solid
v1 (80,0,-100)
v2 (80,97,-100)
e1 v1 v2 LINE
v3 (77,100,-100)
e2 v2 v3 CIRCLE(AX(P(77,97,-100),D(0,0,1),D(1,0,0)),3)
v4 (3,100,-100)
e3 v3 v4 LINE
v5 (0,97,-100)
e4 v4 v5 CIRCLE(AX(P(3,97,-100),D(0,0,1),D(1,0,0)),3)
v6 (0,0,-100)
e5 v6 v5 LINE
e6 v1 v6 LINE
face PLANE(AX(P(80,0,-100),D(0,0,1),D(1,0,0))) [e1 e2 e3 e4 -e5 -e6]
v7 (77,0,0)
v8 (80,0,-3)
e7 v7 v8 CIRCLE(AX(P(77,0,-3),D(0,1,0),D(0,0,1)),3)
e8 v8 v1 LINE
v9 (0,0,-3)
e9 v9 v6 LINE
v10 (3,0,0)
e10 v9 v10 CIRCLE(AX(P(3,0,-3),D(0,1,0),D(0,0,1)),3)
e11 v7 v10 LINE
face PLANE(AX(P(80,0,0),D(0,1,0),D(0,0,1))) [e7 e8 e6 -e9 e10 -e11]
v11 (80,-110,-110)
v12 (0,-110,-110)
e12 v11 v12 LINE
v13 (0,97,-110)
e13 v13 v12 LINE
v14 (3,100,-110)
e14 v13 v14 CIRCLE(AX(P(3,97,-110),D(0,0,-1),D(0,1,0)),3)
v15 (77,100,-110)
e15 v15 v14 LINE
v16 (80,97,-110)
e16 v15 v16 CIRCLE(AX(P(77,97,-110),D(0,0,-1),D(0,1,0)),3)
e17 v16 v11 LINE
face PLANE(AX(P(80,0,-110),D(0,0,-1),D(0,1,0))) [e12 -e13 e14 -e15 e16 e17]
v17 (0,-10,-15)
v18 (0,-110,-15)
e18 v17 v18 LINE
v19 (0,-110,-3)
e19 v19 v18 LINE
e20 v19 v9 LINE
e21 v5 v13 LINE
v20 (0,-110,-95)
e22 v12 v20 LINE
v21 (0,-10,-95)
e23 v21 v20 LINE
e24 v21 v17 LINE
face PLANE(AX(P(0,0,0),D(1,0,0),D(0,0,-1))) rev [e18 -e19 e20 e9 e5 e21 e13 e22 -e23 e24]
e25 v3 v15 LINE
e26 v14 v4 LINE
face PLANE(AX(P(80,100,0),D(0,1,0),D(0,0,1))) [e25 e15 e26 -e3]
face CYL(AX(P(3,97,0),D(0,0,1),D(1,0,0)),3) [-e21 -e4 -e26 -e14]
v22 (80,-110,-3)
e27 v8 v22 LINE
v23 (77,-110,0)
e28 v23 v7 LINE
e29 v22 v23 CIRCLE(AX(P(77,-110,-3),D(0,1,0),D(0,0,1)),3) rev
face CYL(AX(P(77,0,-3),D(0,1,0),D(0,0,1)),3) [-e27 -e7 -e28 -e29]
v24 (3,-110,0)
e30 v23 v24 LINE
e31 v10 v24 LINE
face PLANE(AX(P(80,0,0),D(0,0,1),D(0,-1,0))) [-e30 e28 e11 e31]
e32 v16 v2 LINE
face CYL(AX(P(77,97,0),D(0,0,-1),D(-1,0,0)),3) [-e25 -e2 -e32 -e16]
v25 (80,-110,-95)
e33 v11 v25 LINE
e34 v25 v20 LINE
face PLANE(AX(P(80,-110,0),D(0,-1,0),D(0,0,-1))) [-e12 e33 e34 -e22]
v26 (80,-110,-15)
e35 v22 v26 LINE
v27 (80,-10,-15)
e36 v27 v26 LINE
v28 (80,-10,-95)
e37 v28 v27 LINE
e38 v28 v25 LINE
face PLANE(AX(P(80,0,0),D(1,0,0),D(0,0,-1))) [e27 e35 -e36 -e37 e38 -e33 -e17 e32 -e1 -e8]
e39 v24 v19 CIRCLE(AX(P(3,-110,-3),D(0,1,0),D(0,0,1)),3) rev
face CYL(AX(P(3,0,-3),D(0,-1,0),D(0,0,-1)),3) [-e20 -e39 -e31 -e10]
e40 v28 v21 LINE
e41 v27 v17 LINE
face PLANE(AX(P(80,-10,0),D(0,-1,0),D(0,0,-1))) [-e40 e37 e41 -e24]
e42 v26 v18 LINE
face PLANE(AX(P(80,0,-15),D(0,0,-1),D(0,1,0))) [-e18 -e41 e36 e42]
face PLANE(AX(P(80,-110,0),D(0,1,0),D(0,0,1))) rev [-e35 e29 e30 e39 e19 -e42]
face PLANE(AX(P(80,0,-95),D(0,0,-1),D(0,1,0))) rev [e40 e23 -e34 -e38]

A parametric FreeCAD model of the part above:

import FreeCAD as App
import Part
import Sketcher
from FreeCAD import Vector


def edges_at(feature, points):
    """Names of the edges that pass closest to the given points."""
    edges = feature.Shape.Edges
    near = lambda p: min(range(len(edges)), key=lambda i: edges[i].distToShape(Part.Vertex(*p))[0])
    return sorted({f"Edge{near(p) + 1}" for p in points})


def add_polygon(sketch, points):
    """Adds a closed chain of lines whose ends are joined by coincident constraints."""
    first, n = sketch.GeometryCount, len(points)
    for a, b in zip(points, points[1:] + points[:1]):
        sketch.addGeometry(Part.LineSegment(App.Vector(*a, 0), App.Vector(*b, 0)), False)
    for i in range(n):
        sketch.addConstraint(Sketcher.Constraint("Coincident", first + i, 2, first + (i + 1) % n, 1))

doc = App.newDocument("Part")
body = doc.addObject("PartDesign::Body", "Body")

sketch1 = doc.addObject("Sketcher::SketchObject", "Sketch")
body.addObject(sketch1)
sketch1.AttachmentSupport = (doc.YZ_Plane, [""])
sketch1.MapMode = "FlatFace"
add_polygon(sketch1, [(0, 0), (-110, 0), (-110, -15), (-10, -15), (-10, -95), (-110, -95), (-110, -110), (100, -110), (100, -100), (0, -100)])
sketch1.addConstraint(Sketcher.Constraint("Horizontal", 0))
sketch1.addConstraint(Sketcher.Constraint("Vertical", 1))
sketch1.addConstraint(Sketcher.Constraint("Horizontal", 2))
sketch1.addConstraint(Sketcher.Constraint("Vertical", 3))
sketch1.addConstraint(Sketcher.Constraint("Horizontal", 4))
sketch1.addConstraint(Sketcher.Constraint("Vertical", 5))
sketch1.addConstraint(Sketcher.Constraint("Horizontal", 6))
sketch1.addConstraint(Sketcher.Constraint("Vertical", 7))
sketch1.addConstraint(Sketcher.Constraint("Horizontal", 8))
sketch1.addConstraint(Sketcher.Constraint("Vertical", 9))
sketch1.addConstraint(Sketcher.Constraint("Coincident", 9, 2, -1, 1))
sketch1.addConstraint(Sketcher.Constraint("Vertical", 1, 2, 4, 2))
sketch1.addConstraint(Sketcher.Constraint("Equal", 4, 8))
sketch1.addConstraint(Sketcher.Constraint("Equal", 1, 5))
sketch1.addConstraint(Sketcher.Constraint("Equal", 8, 9))
sketch1.addConstraint(Sketcher.Constraint("DistanceX", 0, 2, 0, 1, 110.0))
sketch1.addConstraint(Sketcher.Constraint("DistanceX", 2, 1, 2, 2, 100.0))
sketch1.addConstraint(Sketcher.Constraint("DistanceY", 1, 2, 1, 1, 15.0))
sketch1.addConstraint(Sketcher.Constraint("DistanceY", 3, 2, 3, 1, 80.0))
pad1 = doc.addObject("PartDesign::Pad", "Pad")
body.addObject(pad1)
pad1.Profile = sketch1
pad1.Length = 80
doc.recompute()

fillet = doc.addObject("PartDesign::Fillet", "Fillet")
body.addObject(fillet)
fillet.Base = (pad1, edges_at(pad1, [(0, 100, -105), (80, 100, -105)]))
fillet.Radius = 3
doc.recompute()

fillet2 = doc.addObject("PartDesign::Fillet", "Fillet001")
body.addObject(fillet2)
fillet2.Base = (fillet, edges_at(fillet, [(0, -55, 0), (80, -55, 0)]))
fillet2.Radius = 3

doc.recompute()
